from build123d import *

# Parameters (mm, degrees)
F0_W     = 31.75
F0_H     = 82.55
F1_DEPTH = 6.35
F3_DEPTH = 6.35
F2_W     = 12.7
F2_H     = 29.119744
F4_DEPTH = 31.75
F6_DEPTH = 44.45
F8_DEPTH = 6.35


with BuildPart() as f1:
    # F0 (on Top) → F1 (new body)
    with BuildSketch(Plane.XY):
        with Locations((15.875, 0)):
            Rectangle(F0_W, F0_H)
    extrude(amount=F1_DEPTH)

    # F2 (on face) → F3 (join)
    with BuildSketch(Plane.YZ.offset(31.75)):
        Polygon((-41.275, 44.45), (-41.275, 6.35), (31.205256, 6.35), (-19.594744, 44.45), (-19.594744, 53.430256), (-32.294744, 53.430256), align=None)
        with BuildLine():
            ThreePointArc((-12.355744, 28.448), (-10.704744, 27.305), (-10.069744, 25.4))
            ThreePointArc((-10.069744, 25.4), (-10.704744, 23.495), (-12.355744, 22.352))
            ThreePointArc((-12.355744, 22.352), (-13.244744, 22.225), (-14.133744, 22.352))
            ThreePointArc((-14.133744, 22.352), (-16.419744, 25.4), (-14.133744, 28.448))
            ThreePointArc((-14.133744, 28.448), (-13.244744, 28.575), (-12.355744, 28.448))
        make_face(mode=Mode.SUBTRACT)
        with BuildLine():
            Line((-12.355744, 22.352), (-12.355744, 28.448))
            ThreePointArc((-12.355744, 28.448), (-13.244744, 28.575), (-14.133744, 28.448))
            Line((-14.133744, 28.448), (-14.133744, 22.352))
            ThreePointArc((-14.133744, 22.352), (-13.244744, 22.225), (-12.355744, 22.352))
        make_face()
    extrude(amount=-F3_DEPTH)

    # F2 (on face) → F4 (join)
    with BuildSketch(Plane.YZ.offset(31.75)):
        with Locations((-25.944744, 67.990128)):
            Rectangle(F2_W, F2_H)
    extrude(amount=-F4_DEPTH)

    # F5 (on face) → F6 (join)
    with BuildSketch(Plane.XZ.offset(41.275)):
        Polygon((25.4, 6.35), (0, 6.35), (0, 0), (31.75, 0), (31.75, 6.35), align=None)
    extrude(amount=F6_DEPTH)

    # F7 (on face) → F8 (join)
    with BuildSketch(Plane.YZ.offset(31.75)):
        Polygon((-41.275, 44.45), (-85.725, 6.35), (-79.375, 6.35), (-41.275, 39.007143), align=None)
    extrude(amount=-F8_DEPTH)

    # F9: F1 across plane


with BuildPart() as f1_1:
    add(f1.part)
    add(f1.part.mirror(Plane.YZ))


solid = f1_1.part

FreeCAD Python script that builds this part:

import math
import FreeCAD as App
import Part
import Sketcher
Q = App.Units.Quantity


def add_polygon(sketch, points):
    """Adds a closed chain of lines whose ends are joined by coincident constraints."""
    first, n = sketch.GeometryCount, len(points)
    for a, b in zip(points, points[1:] + points[:1]):
        sketch.addGeometry(Part.LineSegment(App.Vector(*a, 0), App.Vector(*b, 0)), False)
    for i in range(n):
        sketch.addConstraint(Sketcher.Constraint("Coincident", first + i, 2, first + (i + 1) % n, 1))

doc = App.newDocument("Part")
body = doc.addObject("PartDesign::Body", "Body")

# Sketch on XY plane
sketch1 = body.newObject("Sketcher::SketchObject", "Sketch")
sketch1.AttachmentSupport = (doc.getObject("XY_Plane"), [""])
sketch1.MapMode = "FlatFace"
add_polygon(sketch1, [(0, 41), (0, -41), (32, -41), (32, 41)])  # lines 0-3
sketch1.addConstraint([
    Sketcher.Constraint("Vertical", 0),
    Sketcher.Constraint("Horizontal", 1),
    Sketcher.Constraint("Vertical", 2),
    Sketcher.Constraint("Horizontal", 3),
    Sketcher.Constraint("Symmetric", 0, 2, 3, 2, -1, 1),
    Sketcher.Constraint("DistanceX", 1, 1, 1, 2, Q("1.25 in")),
    Sketcher.Constraint("DistanceY", 0, 2, 0, 1, Q("3.25 in")),
])
pad1 = body.newObject("PartDesign::Pad", "Pad")
pad1.Profile = sketch1
pad1.Length = Q("0.25 in")

# Sketch on YZ plane
sketch2 = body.newObject("Sketcher::SketchObject", "Sketch001")
sketch2.AttachmentSupport = (doc.getObject("YZ_Plane"), [""])
sketch2.MapMode = "FlatFace"
sketch2.AttachmentOffset = App.Placement(App.Vector(0, 0, 1.25 * 25.4), App.Rotation())
add_polygon(sketch2, [(-41.3, 44.5), (-41.3, 6.3), (31.2, 6.3), (-19.6, 44.5), (-19.6, 53.4), (-32.3, 53.4)])  # lines 0-5
sketch2.addGeometry(Part.ArcOfCircle(Part.Circle(App.Vector(-13.2, 25.4, 0), App.Vector(0, 0, 1), 3.2), math.radians(-74), math.radians(74)), False)  # 6
sketch2.addGeometry(Part.LineSegment(App.Vector(-12.4, 22.4, 0), App.Vector(-12.4, 28.4, 0)), False)  # 7
sketch2.addGeometry(Part.ArcOfCircle(Part.Circle(App.Vector(-13.2, 25.4, 0), App.Vector(0, 0, 1), 3.2), math.radians(106), math.radians(254)), False)  # 8
sketch2.addGeometry(Part.LineSegment(App.Vector(-14.1, 28.4, 0), App.Vector(-14.1, 22.4, 0)), False)  # 9
sketch2.addConstraint([
    Sketcher.Constraint("Coincident", 6, 1, 7, 1),
    Sketcher.Constraint("Coincident", 7, 2, 6, 2),
    Sketcher.Constraint("Coincident", 8, 1, 9, 1),
    Sketcher.Constraint("Coincident", 9, 2, 8, 2),
    Sketcher.Constraint("Vertical", 0),
    Sketcher.Constraint("Horizontal", 1),
    Sketcher.Constraint("Vertical", 3),
    Sketcher.Constraint("Horizontal", 4),
    Sketcher.Constraint("Vertical", 7),
    Sketcher.Constraint("Vertical", 9),
    Sketcher.Constraint("Coincident", 8, 3, 6, 3),
    Sketcher.Constraint("Equal", 6, 8),
    Sketcher.Constraint("Horizontal", 2, 2, 5, 2),
    Sketcher.Constraint("Horizontal", 7, 2, 8, 1),
    Sketcher.Constraint("DistanceX", 4, 2, 4, 1, Q("0.5 in")),
    Sketcher.Constraint("DistanceY", 0, 2, 0, 1, Q("1.5 in")),
    Sketcher.Constraint("DistanceY", -1, 1, 6, 3, Q("1 in")),
    Sketcher.Constraint("Angle", 5, Q("-135 deg")),
    Sketcher.Constraint("Radius", 6, Q("0.125 in")),
    Sketcher.Constraint("DistanceX", 2, 2, 1, 2, Q("2 in")),
    Sketcher.Constraint("Distance", 5, Q("0.5 in")),
    Sketcher.Constraint("DistanceY", 7, 1, 7, 2, Q("0.24 in")),
    Sketcher.Constraint("DistanceY", -1, 1, 0, 2, Q("0.25 in")),
    Sketcher.Constraint("DistanceX", 6, 3, 1, 2, Q("1.75 in")),
    Sketcher.Constraint("DistanceX", 0, 2, -1, 1, Q("1.625 in")),
])
pad2 = body.newObject("PartDesign::Pad", "Pad001")
pad2.Profile = sketch2
pad2.Length = Q("0.25 in")
pad2.Reversed = True

# Sketch on YZ plane
sketch3 = body.newObject("Sketcher::SketchObject", "Sketch002")
sketch3.AttachmentSupport = (doc.getObject("YZ_Plane"), [""])
sketch3.MapMode = "FlatFace"
sketch3.AttachmentOffset = App.Placement(App.Vector(0, 0, 1.25 * 25.4), App.Rotation())
add_polygon(sketch3, [(-32, 83), (-32, 53), (-20, 53), (-20, 83)])  # lines 0-3
sketch3.addConstraint([
    Sketcher.Constraint("Vertical", 0),
    Sketcher.Constraint("Horizontal", 1),
    Sketcher.Constraint("Vertical", 2),
    Sketcher.Constraint("Horizontal", 3),
    Sketcher.Constraint("DistanceX", 1, 1, 1, 2, Q("0.5 in")),
    Sketcher.Constraint("DistanceY", -1, 1, 2, 2, Q("3.25 in")),
    Sketcher.Constraint("DistanceY", 0, 2, 0, 1, 29.119744),
    Sketcher.Constraint("DistanceX", 0, 2, -1, 1, 32.294744),
])
pad3 = body.newObject("PartDesign::Pad", "Pad002")
pad3.Profile = sketch3
pad3.Length = Q("1.25 in")
pad3.Reversed = True

# Sketch on XZ plane
sketch4 = body.newObject("Sketcher::SketchObject", "Sketch003")
sketch4.AttachmentSupport = (doc.getObject("XZ_Plane"), [""])
sketch4.MapMode = "FlatFace"
sketch4.AttachmentOffset = App.Placement(App.Vector(0, 0, 1.625 * 25.4), App.Rotation())
add_polygon(sketch4, [(0, 6), (0, 0), (32, 0), (32, 6)])  # lines 0-3
sketch4.addConstraint([
    Sketcher.Constraint("Vertical", 0),
    Sketcher.Constraint("Horizontal", 1),
    Sketcher.Constraint("Vertical", 2),
    Sketcher.Constraint("Horizontal", 3),
    Sketcher.Constraint("Coincident", 0, 2, -1, 1),
    Sketcher.Constraint("DistanceX", 1, 1, 1, 2, Q("1.25 in")),
    Sketcher.Constraint("DistanceY", 0, 2, 0, 1, Q("0.25 in")),
])
pad4 = body.newObject("PartDesign::Pad", "Pad003")
pad4.Profile = sketch4
pad4.Length = Q("1.75 in")

# Sketch on YZ plane
sketch5 = body.newObject("Sketcher::SketchObject", "Sketch004")
sketch5.AttachmentSupport = (doc.getObject("YZ_Plane"), [""])
sketch5.MapMode = "FlatFace"
sketch5.AttachmentOffset = App.Placement(App.Vector(0, 0, 1.25 * 25.4), App.Rotation())
add_polygon(sketch5, [(-41, 44), (-86, 6), (-79, 6), (-41, 39)])  # lines 0-3
sketch5.addConstraint([
    Sketcher.Constraint("Horizontal", 1),
    Sketcher.Constraint("Vertical", 3),
    Sketcher.Constraint("Parallel", 0, 2),
    Sketcher.Constraint("DistanceX", 1, 1, 1, 2, Q("0.25 in")),
    Sketcher.Constraint("DistanceX", 1, 2, 2, 2, Q("1.5 in")),
    Sketcher.Constraint("DistanceY", 1, 2, 3, 2, Q("1.5 in")),
    Sketcher.Constraint("DistanceY", -1, 1, 0, 2, Q("0.25 in")),
    Sketcher.Constraint("DistanceX", 0, 2, -1, 1, Q("3.375 in")),
])
pad5 = body.newObject("PartDesign::Pad", "Pad004")
pad5.Profile = sketch5
pad5.Length = Q("0.25 in")
pad5.Reversed = True
body2 = doc.addObject("PartDesign::Body", "Body001")
doc.recompute()

body2.BaseFeature = body
doc.recompute()

mirroring = doc.addObject("Part::Mirroring", "Mirroring")
mirroring.Source = body
mirroring.Base = App.Vector(0, 0, 0)
mirroring.Normal = App.Vector(1, 0, 0)
body3 = doc.addObject("PartDesign::Body", "Body002")
body3.BaseFeature = mirroring
boolean = body2.newObject("PartDesign::Boolean", "Boolean")
boolean.Type = "Fuse"
boolean.addObjects([body3])
doc.recompute()
mirroring.Visibility = False

doc.recompute()
